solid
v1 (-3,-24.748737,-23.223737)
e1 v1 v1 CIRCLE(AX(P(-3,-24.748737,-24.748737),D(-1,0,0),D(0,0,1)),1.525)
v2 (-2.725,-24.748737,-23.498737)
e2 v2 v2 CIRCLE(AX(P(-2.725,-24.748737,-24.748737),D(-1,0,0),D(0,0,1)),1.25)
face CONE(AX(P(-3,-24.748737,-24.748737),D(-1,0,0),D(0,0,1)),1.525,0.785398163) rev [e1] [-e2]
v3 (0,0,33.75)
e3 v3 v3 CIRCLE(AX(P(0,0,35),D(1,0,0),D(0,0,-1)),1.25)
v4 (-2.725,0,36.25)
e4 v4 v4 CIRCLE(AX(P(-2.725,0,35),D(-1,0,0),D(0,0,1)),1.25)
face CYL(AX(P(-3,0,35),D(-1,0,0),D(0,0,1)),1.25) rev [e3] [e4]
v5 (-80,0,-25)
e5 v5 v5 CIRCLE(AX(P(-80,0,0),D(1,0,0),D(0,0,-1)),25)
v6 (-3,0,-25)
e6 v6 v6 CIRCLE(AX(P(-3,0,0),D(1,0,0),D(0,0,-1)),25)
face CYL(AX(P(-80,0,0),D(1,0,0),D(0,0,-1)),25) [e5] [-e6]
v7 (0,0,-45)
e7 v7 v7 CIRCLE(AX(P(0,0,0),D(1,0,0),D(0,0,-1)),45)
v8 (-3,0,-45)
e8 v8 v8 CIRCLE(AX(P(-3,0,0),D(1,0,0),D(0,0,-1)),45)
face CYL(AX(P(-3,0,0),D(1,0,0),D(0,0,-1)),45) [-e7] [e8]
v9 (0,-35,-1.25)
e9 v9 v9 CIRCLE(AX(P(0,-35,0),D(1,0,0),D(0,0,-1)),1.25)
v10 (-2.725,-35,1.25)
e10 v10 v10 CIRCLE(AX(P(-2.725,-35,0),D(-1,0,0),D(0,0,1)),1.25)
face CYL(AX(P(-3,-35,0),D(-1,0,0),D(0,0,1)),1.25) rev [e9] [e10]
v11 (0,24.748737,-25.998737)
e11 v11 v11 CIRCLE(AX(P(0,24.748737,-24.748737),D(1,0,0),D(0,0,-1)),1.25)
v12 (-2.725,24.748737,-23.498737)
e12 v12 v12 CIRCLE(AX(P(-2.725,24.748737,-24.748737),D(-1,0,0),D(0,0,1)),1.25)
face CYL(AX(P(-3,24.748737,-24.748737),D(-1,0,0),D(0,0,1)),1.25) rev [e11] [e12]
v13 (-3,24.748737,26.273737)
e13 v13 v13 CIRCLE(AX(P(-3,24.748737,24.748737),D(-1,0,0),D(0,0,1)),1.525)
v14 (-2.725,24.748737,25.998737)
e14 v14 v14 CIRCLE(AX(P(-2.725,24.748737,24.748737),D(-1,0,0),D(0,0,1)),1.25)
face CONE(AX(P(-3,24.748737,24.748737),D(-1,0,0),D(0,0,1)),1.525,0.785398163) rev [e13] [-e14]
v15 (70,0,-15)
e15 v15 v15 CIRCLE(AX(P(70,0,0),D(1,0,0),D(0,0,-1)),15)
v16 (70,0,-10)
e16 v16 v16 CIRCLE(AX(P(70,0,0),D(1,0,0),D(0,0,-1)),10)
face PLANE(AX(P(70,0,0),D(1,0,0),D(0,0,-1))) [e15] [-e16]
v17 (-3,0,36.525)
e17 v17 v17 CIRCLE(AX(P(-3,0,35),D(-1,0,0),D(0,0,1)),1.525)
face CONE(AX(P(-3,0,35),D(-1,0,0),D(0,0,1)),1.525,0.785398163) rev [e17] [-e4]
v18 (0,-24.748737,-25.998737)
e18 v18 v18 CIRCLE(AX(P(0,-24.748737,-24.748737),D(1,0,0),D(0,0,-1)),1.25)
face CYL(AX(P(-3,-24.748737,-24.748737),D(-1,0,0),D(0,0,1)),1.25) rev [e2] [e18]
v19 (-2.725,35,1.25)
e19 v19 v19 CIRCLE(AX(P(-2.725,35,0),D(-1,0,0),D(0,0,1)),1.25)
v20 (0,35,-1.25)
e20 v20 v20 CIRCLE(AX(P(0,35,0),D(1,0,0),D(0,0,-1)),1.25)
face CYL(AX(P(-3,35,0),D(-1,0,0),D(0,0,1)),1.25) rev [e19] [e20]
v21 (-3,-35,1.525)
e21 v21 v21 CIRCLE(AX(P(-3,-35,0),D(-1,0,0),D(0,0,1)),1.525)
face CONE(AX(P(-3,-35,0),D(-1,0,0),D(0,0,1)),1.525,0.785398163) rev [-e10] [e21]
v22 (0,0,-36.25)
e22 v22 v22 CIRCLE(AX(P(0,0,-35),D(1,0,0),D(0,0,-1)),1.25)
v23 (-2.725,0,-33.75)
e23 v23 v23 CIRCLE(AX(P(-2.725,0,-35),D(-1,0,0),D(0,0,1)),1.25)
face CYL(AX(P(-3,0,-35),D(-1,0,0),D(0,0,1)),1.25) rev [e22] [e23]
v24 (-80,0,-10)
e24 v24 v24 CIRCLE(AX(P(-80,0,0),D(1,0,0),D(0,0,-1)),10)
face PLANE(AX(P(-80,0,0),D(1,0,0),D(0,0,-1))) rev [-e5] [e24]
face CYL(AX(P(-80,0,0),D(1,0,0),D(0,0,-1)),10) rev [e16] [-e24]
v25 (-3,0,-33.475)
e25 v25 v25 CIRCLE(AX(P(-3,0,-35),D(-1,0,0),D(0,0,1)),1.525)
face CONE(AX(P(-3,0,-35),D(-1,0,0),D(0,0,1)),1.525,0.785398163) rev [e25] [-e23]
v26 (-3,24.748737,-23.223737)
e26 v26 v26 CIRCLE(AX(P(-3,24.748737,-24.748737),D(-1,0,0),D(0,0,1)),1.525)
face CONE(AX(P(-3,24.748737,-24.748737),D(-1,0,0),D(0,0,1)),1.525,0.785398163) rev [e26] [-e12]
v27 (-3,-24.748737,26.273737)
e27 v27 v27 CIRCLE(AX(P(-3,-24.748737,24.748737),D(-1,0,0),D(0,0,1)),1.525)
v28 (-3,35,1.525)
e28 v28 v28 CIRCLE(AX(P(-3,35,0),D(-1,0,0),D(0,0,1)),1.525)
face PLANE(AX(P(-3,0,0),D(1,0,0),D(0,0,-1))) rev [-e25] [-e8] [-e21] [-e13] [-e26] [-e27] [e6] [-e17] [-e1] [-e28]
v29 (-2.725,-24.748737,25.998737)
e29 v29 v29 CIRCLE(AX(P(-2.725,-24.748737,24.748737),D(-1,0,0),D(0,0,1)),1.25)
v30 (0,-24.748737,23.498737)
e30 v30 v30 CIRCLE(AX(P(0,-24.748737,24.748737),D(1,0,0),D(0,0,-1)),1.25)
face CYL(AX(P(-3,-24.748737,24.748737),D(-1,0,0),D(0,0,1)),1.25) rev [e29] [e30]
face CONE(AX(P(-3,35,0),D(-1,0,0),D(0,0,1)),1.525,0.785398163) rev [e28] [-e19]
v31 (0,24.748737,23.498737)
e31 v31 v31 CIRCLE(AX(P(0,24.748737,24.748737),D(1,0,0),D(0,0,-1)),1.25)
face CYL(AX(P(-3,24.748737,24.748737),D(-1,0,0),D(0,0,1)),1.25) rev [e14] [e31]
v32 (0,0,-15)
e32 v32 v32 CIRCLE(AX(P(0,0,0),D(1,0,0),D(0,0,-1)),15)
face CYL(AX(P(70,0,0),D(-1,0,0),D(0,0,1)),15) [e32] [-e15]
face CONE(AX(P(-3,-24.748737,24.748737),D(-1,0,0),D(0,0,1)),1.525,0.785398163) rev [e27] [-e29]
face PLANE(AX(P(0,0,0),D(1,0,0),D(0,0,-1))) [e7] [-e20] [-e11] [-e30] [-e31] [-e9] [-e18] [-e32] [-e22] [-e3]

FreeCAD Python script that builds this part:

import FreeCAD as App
import Part
import Sketcher
from FreeCAD import Vector
Q = App.Units.Quantity

doc = App.newDocument("Part")
body = doc.addObject("PartDesign::Body", "Body")

# Sketch on YZ plane
sketch1 = body.newObject("Sketcher::SketchObject", "Sketch")
sketch1.AttachmentSupport = (doc.getObject("YZ_Plane"), [""])
sketch1.MapMode = "FlatFace"
sketch1.addGeometry([
    Part.Circle(Vector(0, 0, 0), Vector(0, 0, 1), 25),
    Part.Circle(Vector(0, 0, 0), Vector(0, 0, 1), 10),
], False)
sketch1.addConstraint([
    Sketcher.Constraint("Coincident", 0, 3, -1, 1),
    Sketcher.Constraint("Coincident", 1, 3, -1, 1),
    Sketcher.Constraint("Diameter", 0, Q("50 mm")),
    Sketcher.Constraint("Diameter", 1, Q("20 mm")),
])
pad1 = body.newObject("PartDesign::Pad", "Pad")
pad1.Profile = sketch1
pad1.Length = 80
pad1.Reversed = True
body2 = doc.addObject("PartDesign::Body", "Body001")

# Sketch on YZ plane
sketch2 = body2.newObject("Sketcher::SketchObject", "Sketch001")
sketch2.AttachmentSupport = (doc.getObject("YZ_Plane001"), [""])
sketch2.MapMode = "FlatFace"
sketch2.addGeometry([
    Part.Circle(Vector(0, 0, 0), Vector(0, 0, 1), 15),
    Part.Circle(Vector(0, 0, 0), Vector(0, 0, 1), 10),
], False)
sketch2.addConstraint([
    Sketcher.Constraint("Coincident", 0, 3, -1, 1),
    Sketcher.Constraint("Coincident", 1, 3, -1, 1),
    Sketcher.Constraint("Diameter", 0, Q("30 mm")),
    Sketcher.Constraint("Diameter", 1, Q("20 mm")),
])
pad2 = body2.newObject("PartDesign::Pad", "Pad001")
pad2.Profile = sketch2
pad2.Length = 70
doc.recompute()

boolean = body.newObject("PartDesign::Boolean", "Boolean")
boolean.Type = "Fuse"
boolean.addObjects([body2])

# Sketch on YZ plane
sketch3 = body.newObject("Sketcher::SketchObject", "Sketch002")
sketch3.AttachmentSupport = (doc.getObject("YZ_Plane"), [""])
sketch3.MapMode = "FlatFace"
sketch3.addGeometry([
    Part.Circle(Vector(0, 0, 0), Vector(0, 0, 1), 45),
    Part.Circle(Vector(0, 0, 0), Vector(0, 0, 1), 25),
], False)
sketch3.addConstraint([
    Sketcher.Constraint("Coincident", 0, 3, -1, 1),
    Sketcher.Constraint("Coincident", 1, 3, -1, 1),
    Sketcher.Constraint("Diameter", 0, Q("90 mm")),
    Sketcher.Constraint("Diameter", 1, Q("50 mm")),
])
pad3 = body.newObject("PartDesign::Pad", "Pad002")
pad3.Profile = sketch3
pad3.Length = 3
pad3.Reversed = True

# Sketch on YZ plane
sketch4 = body.newObject("Sketcher::SketchObject", "Sketch003")
sketch4.AttachmentSupport = (doc.getObject("YZ_Plane"), [""])
sketch4.MapMode = "FlatFace"
sketch4.AttachmentOffset = App.Placement(Vector(0, 0, -3), App.Rotation())
sketch4.addGeometry([
    Part.Circle(Vector(0, 35, 0), Vector(0, 0, 1), 1.2),  # 0
    Part.Circle(Vector(35, 0, 0), Vector(0, 0, 1), 1.2),  # 1
    Part.Circle(Vector(0, -35, 0), Vector(0, 0, 1), 1.2),  # 2
    Part.Circle(Vector(-35, 0, 0), Vector(0, 0, 1), 1.2),  # 3
    Part.Circle(Vector(24.7, 24.7, 0), Vector(0, 0, 1), 1.2),  # 4
    Part.Circle(Vector(24.7, -24.7, 0), Vector(0, 0, 1), 1.2),  # 5
    Part.Circle(Vector(-24.7, -24.7, 0), Vector(0, 0, 1), 1.2),  # 6
    Part.Circle(Vector(-24.7, 24.7, 0), Vector(0, 0, 1), 1.2),  # 7
], False)
sketch4.addConstraint([
    Sketcher.Constraint("Equal", 0, 1),
    Sketcher.Constraint("Equal", 1, 2),
    Sketcher.Constraint("Equal", 2, 3),
    Sketcher.Constraint("Equal", 3, 4),
    Sketcher.Constraint("Equal", 4, 5),
    Sketcher.Constraint("Equal", 5, 6),
    Sketcher.Constraint("Equal", 6, 7),
    Sketcher.Constraint("Symmetric", 0, 3, 2, 3, -1, 1),
    Sketcher.Constraint("Symmetric", 1, 3, 3, 3, -1, 1),
    Sketcher.Constraint("Symmetric", 4, 3, 6, 3, -1, 1),
    Sketcher.Constraint("Symmetric", 5, 3, 7, 3, -1, 1),
    Sketcher.Constraint("Symmetric", 5, 3, 6, 3, -2),
    Sketcher.Constraint("PointOnObject", 0, 3, -2),
    Sketcher.Constraint("PointOnObject", 1, 3, -1),
    Sketcher.Constraint("Diameter", 0, Q("2.5 mm")),
    Sketcher.Constraint("DistanceY", -1, 1, 0, 3, Q("35 mm")),
    Sketcher.Constraint("DistanceX", -1, 1, 1, 3, Q("35 mm")),
    Sketcher.Constraint("DistanceX", -1, 1, 4, 3, Q("24.748737 mm")),
    Sketcher.Constraint("DistanceY", -1, 1, 4, 3, Q("24.748737 mm")),
])
doc.recompute()
hole = body.newObject("PartDesign::Hole", "Hole")
hole.Profile = sketch4
hole.ThreadType = "None"
hole.Diameter = 2.5
hole.DepthType = "ThroughAll"
hole.HoleCutType = "Countersink"
hole.HoleCutDiameter = 3.05
hole.HoleCutCountersinkAngle = 90
hole.Reversed = True

doc.recompute()
